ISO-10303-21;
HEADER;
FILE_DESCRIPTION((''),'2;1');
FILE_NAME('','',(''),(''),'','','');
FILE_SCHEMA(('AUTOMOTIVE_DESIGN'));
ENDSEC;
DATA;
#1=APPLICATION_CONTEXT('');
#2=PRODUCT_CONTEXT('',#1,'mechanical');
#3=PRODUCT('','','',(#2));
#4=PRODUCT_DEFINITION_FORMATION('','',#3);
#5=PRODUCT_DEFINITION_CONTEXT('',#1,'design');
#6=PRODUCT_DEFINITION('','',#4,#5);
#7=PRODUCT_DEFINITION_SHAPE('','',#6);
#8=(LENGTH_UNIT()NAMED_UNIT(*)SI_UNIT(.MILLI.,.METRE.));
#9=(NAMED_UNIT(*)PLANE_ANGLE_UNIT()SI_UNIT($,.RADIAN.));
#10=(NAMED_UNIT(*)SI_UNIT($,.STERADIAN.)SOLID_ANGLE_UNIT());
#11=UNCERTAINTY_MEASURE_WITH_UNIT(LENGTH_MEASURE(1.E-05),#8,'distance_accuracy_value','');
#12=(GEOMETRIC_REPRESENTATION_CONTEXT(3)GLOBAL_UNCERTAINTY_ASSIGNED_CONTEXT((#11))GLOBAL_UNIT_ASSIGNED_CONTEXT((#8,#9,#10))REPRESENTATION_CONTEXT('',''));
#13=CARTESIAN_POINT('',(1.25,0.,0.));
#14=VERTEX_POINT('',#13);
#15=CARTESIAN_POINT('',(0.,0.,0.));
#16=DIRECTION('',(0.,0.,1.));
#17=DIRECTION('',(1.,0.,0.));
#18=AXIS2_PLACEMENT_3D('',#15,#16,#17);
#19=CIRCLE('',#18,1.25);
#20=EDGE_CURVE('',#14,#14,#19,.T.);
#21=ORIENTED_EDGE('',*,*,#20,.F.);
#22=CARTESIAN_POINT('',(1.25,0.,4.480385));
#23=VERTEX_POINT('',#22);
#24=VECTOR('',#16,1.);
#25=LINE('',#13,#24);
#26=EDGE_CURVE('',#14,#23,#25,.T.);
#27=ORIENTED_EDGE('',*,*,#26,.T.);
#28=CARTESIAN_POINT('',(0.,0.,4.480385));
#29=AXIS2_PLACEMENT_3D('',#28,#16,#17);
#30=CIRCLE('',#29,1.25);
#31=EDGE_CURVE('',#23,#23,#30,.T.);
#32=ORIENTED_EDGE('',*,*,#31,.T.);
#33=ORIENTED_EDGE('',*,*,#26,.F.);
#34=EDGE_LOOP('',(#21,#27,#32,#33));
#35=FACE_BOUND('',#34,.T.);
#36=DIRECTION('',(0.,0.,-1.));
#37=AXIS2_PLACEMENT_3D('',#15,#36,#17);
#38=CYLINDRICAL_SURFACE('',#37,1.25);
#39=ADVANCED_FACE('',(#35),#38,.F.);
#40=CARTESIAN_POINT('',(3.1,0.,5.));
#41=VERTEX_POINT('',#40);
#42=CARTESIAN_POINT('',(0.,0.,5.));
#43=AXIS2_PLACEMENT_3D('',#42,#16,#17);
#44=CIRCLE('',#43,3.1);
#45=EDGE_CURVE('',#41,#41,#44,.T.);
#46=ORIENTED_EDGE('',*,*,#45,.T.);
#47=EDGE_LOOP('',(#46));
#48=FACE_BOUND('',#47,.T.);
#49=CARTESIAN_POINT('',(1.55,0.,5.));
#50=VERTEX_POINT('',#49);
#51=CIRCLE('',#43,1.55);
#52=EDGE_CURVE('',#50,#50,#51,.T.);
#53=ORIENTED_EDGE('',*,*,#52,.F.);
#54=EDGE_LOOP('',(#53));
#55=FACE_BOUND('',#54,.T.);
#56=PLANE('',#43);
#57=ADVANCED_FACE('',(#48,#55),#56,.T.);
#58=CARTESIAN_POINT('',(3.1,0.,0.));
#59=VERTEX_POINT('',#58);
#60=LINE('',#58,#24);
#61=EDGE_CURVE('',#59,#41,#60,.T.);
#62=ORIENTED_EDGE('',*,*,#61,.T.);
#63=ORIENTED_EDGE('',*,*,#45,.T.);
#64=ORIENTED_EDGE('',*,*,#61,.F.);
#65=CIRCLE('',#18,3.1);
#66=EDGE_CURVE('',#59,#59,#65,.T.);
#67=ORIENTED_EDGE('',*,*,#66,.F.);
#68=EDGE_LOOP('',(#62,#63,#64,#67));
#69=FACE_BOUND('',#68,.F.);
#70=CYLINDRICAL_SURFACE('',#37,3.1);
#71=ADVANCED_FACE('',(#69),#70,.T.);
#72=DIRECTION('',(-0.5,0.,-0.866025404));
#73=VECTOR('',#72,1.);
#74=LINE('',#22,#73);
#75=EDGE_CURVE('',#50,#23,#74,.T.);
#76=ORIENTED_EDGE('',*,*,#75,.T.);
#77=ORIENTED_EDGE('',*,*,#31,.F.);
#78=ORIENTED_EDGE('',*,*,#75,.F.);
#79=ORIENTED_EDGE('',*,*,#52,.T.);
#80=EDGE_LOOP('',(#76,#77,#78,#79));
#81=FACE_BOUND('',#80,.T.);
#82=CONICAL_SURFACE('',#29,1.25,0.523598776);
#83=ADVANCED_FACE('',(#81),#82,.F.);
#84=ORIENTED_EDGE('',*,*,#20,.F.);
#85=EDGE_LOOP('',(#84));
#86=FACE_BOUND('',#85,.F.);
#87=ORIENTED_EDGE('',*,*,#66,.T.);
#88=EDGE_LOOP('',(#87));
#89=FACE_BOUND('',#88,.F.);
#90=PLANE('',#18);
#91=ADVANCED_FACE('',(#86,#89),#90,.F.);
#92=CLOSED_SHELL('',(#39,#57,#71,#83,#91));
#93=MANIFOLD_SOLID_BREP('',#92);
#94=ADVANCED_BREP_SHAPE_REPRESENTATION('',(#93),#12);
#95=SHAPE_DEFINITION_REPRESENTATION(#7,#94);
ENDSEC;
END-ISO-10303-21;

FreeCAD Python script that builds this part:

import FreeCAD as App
import Part
import Sketcher
Q = App.Units.Quantity


def edges_at(feature, points):
    """Names of the edges that pass closest to the given points."""
    edges = feature.Shape.Edges
    near = lambda p: min(range(len(edges)), key=lambda i: edges[i].distToShape(Part.Vertex(*p))[0])
    return sorted({f"Edge{near(p) + 1}" for p in points})

doc = App.newDocument("Part")
params = doc.addObject("Spreadsheet::Sheet", "Params")
for row, (alias, value) in enumerate([
    ("sketch1_diameter", "6.2 mm"),
    ("sketch1_diameter2", "2.5 mm"),
    ("pad1_length", "5 mm"),
    ("chamfer_size", "0.3 mm"),
    ("chamfer_size2", "0.519615 mm"),
], start=1):
    params.set(f"A{row}", alias)
    params.set(f"B{row}", "=" + value)
    params.setAlias(f"B{row}", alias)

body = doc.addObject("PartDesign::Body", "Body")

# Sketch on XY plane
sketch1 = doc.addObject("Sketcher::SketchObject", "Sketch")
body.addObject(sketch1)
sketch1.AttachmentSupport = (doc.XY_Plane, [""])
sketch1.MapMode = "FlatFace"
sketch1.addGeometry(Part.Circle(App.Vector(0, 0, 0), App.Vector(0, 0, 1), 3.1), False)
sketch1.addGeometry(Part.Circle(App.Vector(0, 0, 0), App.Vector(0, 0, 1), 1.2), False)
sketch1.addConstraint(Sketcher.Constraint("Coincident", 0, 3, -1, 1))
sketch1.addConstraint(Sketcher.Constraint("Coincident", 1, 3, -1, 1))
sketch1.addConstraint(Sketcher.Constraint("Diameter", 0, Q("6.2 mm")))
sketch1.addConstraint(Sketcher.Constraint("Diameter", 1, Q("2.5 mm")))
sketch1.setExpression("Constraints[2]", "Params.sketch1_diameter")
sketch1.setExpression("Constraints[3]", "Params.sketch1_diameter2")
pad1 = doc.addObject("PartDesign::Pad", "Pad")
body.addObject(pad1)
pad1.Profile = sketch1
pad1.setExpression("Length", "Params.pad1_length")
doc.recompute()

chamfer = doc.addObject("PartDesign::Chamfer", "Chamfer")
body.addObject(chamfer)
chamfer.Base = (pad1, edges_at(pad1, [(-1.25, 0, 5)]))
chamfer.ChamferType = "Two distances"
chamfer.setExpression("Size", "Params.chamfer_size")
chamfer.setExpression("Size2", "Params.chamfer_size2")
chamfer.FlipDirection = True

doc.recompute()
